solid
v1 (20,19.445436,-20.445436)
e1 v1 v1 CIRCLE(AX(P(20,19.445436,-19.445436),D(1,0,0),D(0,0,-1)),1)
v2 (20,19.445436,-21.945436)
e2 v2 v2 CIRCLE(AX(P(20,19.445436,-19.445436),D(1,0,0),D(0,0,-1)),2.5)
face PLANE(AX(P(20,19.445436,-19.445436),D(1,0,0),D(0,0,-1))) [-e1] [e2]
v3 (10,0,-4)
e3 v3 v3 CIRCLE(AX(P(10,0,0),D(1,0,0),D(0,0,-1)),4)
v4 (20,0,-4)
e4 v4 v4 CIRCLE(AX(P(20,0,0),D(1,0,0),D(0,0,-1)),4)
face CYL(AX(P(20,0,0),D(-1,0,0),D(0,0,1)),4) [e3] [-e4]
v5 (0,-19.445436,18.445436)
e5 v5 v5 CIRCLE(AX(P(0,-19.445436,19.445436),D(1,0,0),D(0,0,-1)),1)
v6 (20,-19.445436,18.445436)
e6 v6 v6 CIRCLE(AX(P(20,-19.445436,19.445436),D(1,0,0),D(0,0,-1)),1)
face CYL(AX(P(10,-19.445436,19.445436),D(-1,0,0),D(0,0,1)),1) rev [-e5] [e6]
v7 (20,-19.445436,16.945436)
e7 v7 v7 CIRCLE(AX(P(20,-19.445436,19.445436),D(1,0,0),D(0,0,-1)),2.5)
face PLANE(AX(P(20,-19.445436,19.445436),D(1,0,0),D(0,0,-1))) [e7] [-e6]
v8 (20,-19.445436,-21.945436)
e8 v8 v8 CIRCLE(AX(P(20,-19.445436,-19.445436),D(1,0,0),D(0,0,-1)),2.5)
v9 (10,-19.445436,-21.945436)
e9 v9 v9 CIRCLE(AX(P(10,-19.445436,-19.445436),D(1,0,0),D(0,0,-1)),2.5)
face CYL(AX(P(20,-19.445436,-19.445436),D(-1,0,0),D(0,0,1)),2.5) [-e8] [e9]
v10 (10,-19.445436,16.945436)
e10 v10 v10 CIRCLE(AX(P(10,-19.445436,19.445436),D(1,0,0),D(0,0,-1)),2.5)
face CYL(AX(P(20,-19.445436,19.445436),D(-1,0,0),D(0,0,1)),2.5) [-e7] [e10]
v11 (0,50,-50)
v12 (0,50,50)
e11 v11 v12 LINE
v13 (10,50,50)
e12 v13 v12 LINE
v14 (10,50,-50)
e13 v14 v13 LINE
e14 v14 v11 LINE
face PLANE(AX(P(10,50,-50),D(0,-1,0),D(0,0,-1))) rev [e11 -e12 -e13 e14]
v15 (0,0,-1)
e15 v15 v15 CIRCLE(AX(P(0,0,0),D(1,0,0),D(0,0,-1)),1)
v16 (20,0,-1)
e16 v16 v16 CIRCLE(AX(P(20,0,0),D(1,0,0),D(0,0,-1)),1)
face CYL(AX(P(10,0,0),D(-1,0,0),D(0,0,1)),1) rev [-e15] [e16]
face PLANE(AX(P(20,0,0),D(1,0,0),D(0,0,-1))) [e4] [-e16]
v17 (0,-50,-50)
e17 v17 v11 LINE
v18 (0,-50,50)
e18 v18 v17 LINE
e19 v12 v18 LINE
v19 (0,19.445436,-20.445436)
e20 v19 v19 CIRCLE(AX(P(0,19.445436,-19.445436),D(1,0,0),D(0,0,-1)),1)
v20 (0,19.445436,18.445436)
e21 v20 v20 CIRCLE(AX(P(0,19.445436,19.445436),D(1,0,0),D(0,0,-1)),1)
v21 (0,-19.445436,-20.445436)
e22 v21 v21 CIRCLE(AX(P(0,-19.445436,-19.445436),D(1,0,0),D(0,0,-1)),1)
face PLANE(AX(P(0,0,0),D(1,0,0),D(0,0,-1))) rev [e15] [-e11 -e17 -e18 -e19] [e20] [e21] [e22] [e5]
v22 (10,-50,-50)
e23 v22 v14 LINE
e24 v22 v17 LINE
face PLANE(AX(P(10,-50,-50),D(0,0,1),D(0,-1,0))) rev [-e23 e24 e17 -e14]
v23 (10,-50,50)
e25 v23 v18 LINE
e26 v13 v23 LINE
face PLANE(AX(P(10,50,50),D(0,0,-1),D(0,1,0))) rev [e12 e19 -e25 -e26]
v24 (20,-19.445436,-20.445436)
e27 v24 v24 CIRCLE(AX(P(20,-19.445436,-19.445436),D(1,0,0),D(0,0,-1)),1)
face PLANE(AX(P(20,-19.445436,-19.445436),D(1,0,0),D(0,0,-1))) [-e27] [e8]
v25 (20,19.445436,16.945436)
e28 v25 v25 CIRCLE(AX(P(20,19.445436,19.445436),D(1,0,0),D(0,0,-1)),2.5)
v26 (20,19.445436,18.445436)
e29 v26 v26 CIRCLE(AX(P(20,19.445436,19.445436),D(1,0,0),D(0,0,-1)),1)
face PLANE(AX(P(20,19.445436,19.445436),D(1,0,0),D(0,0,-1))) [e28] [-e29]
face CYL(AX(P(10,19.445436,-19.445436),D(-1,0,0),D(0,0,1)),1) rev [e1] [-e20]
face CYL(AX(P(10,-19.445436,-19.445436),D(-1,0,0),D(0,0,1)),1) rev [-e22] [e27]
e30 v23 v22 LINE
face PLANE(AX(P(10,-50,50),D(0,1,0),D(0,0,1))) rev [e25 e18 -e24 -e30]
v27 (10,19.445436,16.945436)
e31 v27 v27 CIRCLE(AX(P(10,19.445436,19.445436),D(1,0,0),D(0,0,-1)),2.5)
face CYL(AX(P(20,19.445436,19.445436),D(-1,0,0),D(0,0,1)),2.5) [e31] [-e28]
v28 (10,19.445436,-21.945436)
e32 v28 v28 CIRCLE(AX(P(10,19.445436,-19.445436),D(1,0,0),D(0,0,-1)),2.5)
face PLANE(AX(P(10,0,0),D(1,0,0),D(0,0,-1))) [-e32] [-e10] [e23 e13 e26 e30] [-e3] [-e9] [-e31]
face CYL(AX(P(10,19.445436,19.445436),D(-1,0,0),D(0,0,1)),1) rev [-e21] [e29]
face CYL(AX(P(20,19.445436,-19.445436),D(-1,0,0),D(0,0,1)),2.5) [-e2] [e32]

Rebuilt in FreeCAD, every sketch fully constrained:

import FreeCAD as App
import Part
import Sketcher
from FreeCAD import Vector

doc = App.newDocument("Part")
body = doc.addObject("PartDesign::Body", "Body")

# Sketch on YZ plane
sketch1 = doc.addObject("Sketcher::SketchObject", "Sketch")
body.addObject(sketch1)
sketch1.AttachmentSupport = (doc.YZ_Plane, [""])
sketch1.MapMode = "FlatFace"
sketch1.addGeometry([
    Part.LineSegment(Vector(50, 50, 0), Vector(-50, 50, 0)),  # 0
    Part.LineSegment(Vector(-50, 50, 0), Vector(-50, -50, 0)),  # 1
    Part.LineSegment(Vector(-50, -50, 0), Vector(50, -50, 0)),  # 2
    Part.LineSegment(Vector(50, -50, 0), Vector(50, 50, 0)),  # 3
    Part.Circle(Vector(-19.445436, 19.445436, 0), Vector(0, 0, 1), 1),  # 4
    Part.Circle(Vector(-19.445436, -19.445436, 0), Vector(0, 0, 1), 1),  # 5
    Part.Circle(Vector(19.445436, 19.445436, 0), Vector(0, 0, 1), 1),  # 6
    Part.Circle(Vector(0, 0, 0), Vector(0, 0, 1), 1),  # 7
    Part.Circle(Vector(19.445436, -19.445436, 0), Vector(0, 0, 1), 1),  # 8
], False)
sketch1.addConstraint([
    Sketcher.Constraint("Coincident", 0, 2, 1, 1),
    Sketcher.Constraint("Coincident", 1, 2, 2, 1),
    Sketcher.Constraint("Coincident", 2, 2, 3, 1),
    Sketcher.Constraint("Coincident", 3, 2, 0, 1),
    Sketcher.Constraint("Horizontal", 0),
    Sketcher.Constraint("Vertical", 1),
    Sketcher.Constraint("Horizontal", 2),
    Sketcher.Constraint("Vertical", 3),
    Sketcher.Constraint("Coincident", 7, 3, -1, 1),
    Sketcher.Constraint("Equal", 4, 5),
    Sketcher.Constraint("Equal", 5, 6),
    Sketcher.Constraint("Equal", 6, 7),
    Sketcher.Constraint("Equal", 7, 8),
    Sketcher.Constraint("Symmetric", 5, 3, 6, 3, -1, 1),
    Sketcher.Constraint("Symmetric", 4, 3, 8, 3, -1, 1),
    Sketcher.Constraint("Symmetric", 0, 2, 2, 2, -1, 1),
    Sketcher.Constraint("Symmetric", 4, 3, 6, 3, -2),
    Sketcher.Constraint("Equal", 2, 1),
    Sketcher.Constraint("Diameter", 4, 2.0),
    Sketcher.Constraint("DistanceX", 0, 2, 0, 1, 100.0),
    Sketcher.Constraint("DistanceX", 4, 3, -1, 1, 19.445436),
    Sketcher.Constraint("DistanceY", -1, 1, 4, 3, 19.445436),
])
pad1 = doc.addObject("PartDesign::Pad", "Pad")
body.addObject(pad1)
pad1.Profile = sketch1
pad1.Length = 10

# Sketch on YZ plane
sketch2 = doc.addObject("Sketcher::SketchObject", "Sketch001")
body.addObject(sketch2)
sketch2.AttachmentSupport = (doc.YZ_Plane, [""])
sketch2.MapMode = "FlatFace"
sketch2.AttachmentOffset = App.Placement(Vector(0, 0, 10), App.Rotation())
sketch2.addGeometry([
    Part.Circle(Vector(0, 0, 0), Vector(0, 0, 1), 4),  # 0
    Part.Circle(Vector(0, 0, 0), Vector(0, 0, 1), 1),  # 1
    Part.Circle(Vector(19.445436, -19.445436, 0), Vector(0, 0, 1), 2.5),  # 2
    Part.Circle(Vector(19.445436, -19.445436, 0), Vector(0, 0, 1), 1),  # 3
    Part.Circle(Vector(-19.445436, -19.445436, 0), Vector(0, 0, 1), 2.5),  # 4
    Part.Circle(Vector(-19.445436, -19.445436, 0), Vector(0, 0, 1), 1),  # 5
    Part.Circle(Vector(-19.445436, 19.445436, 0), Vector(0, 0, 1), 2.5),  # 6
    Part.Circle(Vector(-19.445436, 19.445436, 0), Vector(0, 0, 1), 1),  # 7
    Part.Circle(Vector(19.445436, 19.445436, 0), Vector(0, 0, 1), 2.5),  # 8
    Part.Circle(Vector(19.445436, 19.445436, 0), Vector(0, 0, 1), 1),  # 9
], False)
sketch2.addConstraint([
    Sketcher.Constraint("Coincident", 0, 3, -1, 1),
    Sketcher.Constraint("Coincident", 1, 3, -1, 1),
    Sketcher.Constraint("Coincident", 3, 3, 2, 3),
    Sketcher.Constraint("Coincident", 5, 3, 4, 3),
    Sketcher.Constraint("Coincident", 7, 3, 6, 3),
    Sketcher.Constraint("Coincident", 9, 3, 8, 3),
    Sketcher.Constraint("Equal", 1, 3),
    Sketcher.Constraint("Equal", 2, 4),
    Sketcher.Constraint("Equal", 3, 5),
    Sketcher.Constraint("Equal", 4, 6),
    Sketcher.Constraint("Equal", 5, 7),
    Sketcher.Constraint("Equal", 6, 8),
    Sketcher.Constraint("Equal", 7, 9),
    Sketcher.Constraint("Symmetric", 2, 3, 6, 3, -1, 1),
    Sketcher.Constraint("Symmetric", 4, 3, 8, 3, -1, 1),
    Sketcher.Constraint("Symmetric", 2, 3, 4, 3, -2),
    Sketcher.Constraint("Diameter", 0, 8.0),
    Sketcher.Constraint("Diameter", 1, 2.0),
    Sketcher.Constraint("Diameter", 2, 5.0),
    Sketcher.Constraint("DistanceX", -1, 1, 2, 3, 19.445436),
    Sketcher.Constraint("DistanceY", 2, 3, -1, 1, 19.445436),
])
pad2 = doc.addObject("PartDesign::Pad", "Pad001")
body.addObject(pad2)
pad2.Profile = sketch2
pad2.Length = 10

doc.recompute()
